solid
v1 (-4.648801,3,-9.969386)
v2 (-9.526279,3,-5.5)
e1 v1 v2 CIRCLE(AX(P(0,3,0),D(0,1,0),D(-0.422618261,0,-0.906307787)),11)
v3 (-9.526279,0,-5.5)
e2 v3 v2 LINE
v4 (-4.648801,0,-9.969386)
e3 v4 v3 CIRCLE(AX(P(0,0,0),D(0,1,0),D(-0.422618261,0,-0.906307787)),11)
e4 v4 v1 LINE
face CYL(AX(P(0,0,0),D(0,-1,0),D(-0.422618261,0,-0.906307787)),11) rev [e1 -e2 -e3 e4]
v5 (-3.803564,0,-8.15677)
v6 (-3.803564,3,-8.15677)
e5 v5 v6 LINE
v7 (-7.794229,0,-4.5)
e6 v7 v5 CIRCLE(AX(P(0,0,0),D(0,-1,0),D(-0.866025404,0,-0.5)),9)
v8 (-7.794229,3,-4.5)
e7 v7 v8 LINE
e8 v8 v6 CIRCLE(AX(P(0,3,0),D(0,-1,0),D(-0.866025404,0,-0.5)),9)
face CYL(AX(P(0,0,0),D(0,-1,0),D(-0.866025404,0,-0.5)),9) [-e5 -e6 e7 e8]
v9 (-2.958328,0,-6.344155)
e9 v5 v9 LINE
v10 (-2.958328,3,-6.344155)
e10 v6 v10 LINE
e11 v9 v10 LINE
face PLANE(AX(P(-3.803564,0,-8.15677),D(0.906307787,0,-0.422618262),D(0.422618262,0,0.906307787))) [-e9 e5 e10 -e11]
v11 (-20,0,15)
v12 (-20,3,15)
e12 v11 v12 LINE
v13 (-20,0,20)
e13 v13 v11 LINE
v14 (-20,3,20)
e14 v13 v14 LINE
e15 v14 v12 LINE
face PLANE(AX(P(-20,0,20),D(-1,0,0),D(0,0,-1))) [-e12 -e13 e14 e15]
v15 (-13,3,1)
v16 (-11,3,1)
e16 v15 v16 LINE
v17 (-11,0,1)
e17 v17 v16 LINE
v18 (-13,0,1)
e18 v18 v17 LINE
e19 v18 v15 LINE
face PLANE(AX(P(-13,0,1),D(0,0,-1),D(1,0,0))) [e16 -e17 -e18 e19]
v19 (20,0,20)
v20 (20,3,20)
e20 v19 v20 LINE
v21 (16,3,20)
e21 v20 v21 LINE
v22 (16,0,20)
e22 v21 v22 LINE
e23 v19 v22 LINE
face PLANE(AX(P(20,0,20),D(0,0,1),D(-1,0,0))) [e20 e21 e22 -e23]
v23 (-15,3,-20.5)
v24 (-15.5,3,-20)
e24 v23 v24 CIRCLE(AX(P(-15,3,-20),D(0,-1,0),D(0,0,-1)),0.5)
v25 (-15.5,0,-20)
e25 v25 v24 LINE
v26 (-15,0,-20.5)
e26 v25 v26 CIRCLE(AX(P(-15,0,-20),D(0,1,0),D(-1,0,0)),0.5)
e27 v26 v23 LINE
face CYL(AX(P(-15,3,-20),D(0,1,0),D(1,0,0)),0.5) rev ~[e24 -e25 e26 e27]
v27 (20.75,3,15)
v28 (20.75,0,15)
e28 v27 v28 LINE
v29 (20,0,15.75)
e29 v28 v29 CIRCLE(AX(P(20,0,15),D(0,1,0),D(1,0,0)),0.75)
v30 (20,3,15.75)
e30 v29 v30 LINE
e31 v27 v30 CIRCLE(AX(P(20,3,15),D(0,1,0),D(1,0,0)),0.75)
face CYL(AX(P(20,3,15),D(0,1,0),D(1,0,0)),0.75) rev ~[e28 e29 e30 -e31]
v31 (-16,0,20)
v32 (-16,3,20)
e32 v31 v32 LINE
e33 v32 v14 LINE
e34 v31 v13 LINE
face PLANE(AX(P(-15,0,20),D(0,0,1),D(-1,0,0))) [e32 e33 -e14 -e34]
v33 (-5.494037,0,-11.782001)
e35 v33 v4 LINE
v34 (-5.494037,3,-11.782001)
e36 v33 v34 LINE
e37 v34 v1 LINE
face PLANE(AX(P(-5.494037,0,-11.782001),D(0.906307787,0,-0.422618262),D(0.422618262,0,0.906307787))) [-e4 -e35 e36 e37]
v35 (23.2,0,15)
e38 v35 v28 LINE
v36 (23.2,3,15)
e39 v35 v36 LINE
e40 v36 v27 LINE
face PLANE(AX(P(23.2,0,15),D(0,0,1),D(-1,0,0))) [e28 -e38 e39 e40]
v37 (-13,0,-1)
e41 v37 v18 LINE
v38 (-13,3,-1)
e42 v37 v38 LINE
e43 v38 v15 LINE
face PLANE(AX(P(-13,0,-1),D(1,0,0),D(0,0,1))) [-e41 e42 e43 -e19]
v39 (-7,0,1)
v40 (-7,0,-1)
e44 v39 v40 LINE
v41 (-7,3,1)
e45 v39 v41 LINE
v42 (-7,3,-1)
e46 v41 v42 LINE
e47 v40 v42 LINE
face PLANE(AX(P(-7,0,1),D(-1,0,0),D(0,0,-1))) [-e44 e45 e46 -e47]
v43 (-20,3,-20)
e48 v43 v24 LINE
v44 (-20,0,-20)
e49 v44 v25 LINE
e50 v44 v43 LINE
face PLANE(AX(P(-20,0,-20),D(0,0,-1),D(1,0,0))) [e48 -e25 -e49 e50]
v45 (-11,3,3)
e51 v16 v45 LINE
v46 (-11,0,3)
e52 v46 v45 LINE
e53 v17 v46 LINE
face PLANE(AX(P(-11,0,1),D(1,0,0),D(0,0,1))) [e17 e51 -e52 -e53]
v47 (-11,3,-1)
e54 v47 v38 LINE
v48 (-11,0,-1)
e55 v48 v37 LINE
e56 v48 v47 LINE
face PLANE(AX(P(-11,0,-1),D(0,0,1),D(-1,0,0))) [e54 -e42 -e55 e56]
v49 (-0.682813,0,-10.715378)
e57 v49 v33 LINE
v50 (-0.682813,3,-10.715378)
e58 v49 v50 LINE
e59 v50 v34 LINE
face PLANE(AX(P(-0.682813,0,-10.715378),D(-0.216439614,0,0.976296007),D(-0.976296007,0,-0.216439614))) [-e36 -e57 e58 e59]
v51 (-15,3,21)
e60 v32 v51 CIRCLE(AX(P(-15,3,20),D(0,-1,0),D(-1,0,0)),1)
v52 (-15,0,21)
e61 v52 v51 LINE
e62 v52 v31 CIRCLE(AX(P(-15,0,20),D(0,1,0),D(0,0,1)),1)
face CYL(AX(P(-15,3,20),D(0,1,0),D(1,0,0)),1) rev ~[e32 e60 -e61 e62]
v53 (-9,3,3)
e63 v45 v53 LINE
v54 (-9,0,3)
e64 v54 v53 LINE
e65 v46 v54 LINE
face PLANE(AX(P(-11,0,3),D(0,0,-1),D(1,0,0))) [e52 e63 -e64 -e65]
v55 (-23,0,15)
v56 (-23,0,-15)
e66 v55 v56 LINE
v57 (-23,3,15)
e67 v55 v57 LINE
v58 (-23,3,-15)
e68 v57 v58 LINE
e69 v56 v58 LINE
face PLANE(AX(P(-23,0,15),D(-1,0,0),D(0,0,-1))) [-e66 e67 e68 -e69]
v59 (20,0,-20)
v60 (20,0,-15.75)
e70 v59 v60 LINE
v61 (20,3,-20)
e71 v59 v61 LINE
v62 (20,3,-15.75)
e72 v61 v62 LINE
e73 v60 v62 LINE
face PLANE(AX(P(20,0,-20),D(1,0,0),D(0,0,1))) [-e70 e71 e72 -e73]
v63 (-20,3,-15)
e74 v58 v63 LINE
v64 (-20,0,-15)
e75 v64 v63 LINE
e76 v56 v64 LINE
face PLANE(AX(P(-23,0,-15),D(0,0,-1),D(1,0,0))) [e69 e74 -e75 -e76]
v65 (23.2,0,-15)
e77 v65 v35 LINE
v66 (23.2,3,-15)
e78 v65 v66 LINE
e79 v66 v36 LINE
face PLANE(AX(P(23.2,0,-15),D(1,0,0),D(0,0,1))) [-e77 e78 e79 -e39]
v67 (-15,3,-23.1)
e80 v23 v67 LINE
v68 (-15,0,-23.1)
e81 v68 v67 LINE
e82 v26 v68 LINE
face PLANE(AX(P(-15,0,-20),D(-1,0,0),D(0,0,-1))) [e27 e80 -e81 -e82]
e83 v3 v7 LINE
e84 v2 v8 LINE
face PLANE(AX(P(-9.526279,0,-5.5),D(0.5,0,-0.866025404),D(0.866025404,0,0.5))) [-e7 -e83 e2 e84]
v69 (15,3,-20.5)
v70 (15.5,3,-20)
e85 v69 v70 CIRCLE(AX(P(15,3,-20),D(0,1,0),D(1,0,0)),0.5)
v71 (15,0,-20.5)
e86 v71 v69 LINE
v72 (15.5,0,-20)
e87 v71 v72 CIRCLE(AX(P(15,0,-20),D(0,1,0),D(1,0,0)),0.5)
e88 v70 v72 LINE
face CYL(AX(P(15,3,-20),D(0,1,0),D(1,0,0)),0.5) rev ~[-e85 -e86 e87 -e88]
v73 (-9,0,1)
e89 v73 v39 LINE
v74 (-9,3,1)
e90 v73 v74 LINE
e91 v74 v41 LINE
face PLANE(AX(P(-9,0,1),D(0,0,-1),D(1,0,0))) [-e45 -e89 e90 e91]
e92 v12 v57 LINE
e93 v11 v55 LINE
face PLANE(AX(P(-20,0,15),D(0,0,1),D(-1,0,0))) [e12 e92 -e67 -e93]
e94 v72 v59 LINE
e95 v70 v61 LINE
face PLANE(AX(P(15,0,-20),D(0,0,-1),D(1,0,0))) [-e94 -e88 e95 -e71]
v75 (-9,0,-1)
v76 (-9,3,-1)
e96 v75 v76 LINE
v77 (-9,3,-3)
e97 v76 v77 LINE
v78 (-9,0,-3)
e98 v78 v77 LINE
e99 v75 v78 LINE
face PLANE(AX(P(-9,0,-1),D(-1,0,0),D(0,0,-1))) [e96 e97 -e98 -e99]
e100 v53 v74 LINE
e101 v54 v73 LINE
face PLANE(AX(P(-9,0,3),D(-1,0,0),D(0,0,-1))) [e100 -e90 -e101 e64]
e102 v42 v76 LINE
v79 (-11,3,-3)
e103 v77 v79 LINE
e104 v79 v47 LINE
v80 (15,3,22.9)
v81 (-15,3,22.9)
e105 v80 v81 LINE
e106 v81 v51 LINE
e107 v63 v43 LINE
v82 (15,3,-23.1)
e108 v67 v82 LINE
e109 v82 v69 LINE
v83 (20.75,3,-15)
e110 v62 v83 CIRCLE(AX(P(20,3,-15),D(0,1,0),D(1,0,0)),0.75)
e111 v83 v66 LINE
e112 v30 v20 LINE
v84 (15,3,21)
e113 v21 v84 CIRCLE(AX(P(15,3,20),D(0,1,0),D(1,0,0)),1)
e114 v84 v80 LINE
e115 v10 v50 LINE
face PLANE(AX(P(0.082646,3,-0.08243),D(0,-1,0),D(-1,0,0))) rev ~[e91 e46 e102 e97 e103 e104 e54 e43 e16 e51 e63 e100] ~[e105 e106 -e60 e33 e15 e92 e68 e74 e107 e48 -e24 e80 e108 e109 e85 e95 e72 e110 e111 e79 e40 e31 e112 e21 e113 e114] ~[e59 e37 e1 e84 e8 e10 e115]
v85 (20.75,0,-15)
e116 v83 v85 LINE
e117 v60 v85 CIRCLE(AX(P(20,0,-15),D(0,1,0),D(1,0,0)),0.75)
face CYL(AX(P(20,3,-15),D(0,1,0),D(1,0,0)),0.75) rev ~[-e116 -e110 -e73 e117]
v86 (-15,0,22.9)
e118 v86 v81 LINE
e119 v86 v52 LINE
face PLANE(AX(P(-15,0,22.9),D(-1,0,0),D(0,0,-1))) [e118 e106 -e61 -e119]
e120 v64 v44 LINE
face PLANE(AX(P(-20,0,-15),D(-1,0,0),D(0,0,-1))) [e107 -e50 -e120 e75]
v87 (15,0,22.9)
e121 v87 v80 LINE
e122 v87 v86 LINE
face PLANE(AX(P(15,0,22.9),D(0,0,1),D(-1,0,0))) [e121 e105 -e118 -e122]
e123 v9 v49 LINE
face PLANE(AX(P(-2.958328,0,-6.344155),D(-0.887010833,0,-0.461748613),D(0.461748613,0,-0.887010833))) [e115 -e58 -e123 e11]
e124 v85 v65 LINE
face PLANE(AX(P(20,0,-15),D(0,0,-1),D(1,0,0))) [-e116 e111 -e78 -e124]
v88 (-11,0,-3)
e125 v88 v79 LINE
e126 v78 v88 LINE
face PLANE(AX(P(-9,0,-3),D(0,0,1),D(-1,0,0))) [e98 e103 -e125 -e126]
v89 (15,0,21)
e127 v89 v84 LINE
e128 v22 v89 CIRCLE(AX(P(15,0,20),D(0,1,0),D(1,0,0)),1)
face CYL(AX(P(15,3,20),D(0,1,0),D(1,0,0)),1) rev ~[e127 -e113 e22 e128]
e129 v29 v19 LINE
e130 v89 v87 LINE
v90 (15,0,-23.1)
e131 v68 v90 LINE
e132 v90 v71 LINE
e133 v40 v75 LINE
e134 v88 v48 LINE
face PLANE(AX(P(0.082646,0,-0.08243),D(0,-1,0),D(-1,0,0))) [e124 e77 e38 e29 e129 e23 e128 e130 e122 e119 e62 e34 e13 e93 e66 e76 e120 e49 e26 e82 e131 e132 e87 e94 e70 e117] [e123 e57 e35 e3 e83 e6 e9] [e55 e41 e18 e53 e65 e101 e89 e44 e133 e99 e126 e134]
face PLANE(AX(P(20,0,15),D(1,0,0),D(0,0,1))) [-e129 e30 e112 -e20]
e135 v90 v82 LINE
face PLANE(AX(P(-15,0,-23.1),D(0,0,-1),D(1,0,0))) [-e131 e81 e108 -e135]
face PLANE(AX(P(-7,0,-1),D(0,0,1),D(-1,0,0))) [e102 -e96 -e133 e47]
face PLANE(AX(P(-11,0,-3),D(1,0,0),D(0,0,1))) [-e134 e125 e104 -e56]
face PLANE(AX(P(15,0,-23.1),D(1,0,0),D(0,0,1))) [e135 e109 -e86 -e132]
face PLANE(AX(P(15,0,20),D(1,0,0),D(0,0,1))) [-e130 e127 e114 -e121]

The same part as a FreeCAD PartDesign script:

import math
import FreeCAD as App
import Part
import Sketcher
from FreeCAD import Vector
Q = App.Units.Quantity


def add_polygon(sketch, points):
    """Adds a closed chain of lines whose ends are joined by coincident constraints."""
    first, n = sketch.GeometryCount, len(points)
    for a, b in zip(points, points[1:] + points[:1]):
        sketch.addGeometry(Part.LineSegment(App.Vector(*a, 0), App.Vector(*b, 0)), False)
    for i in range(n):
        sketch.addConstraint(Sketcher.Constraint("Coincident", first + i, 2, first + (i + 1) % n, 1))

doc = App.newDocument("Part")
body = doc.addObject("PartDesign::Body", "Body")

# Sketch on XZ plane
sketch1 = body.newObject("Sketcher::SketchObject", "Sketch")
sketch1.AttachmentSupport = (doc.getObject("XZ_Plane"), [""])
sketch1.MapMode = "FlatFace"
add_polygon(sketch1, [(-20, 15), (-20, 20), (-15, 20), (-15, 22.9), (15, 22.9), (15, 20), (20, 20), (20, 15), (23.2, 15), (23.2, -15), (20, -15), (20, -20), (15, -20), (15, -23.1), (-15, -23.1), (-15, -20), (-20, -20), (-20, -15), (-23, -15), (-23, 15)])  # lines 0-19
add_polygon(sketch1, [(-13, 1), (-13, -1), (-11, -1), (-11, -3), (-9, -3), (-9, -1), (-7, -1), (-7, 1), (-9, 1), (-9, 3), (-11, 3), (-11, 1)])  # lines 20-31
sketch1.addGeometry(Part.ArcOfCircle(Part.Circle(Vector(0, 0, 0), Vector(0, 0, 1), 11), math.radians(-150), math.radians(-115)), False)  # 32
sketch1.addGeometry(Part.LineSegment(Vector(-4.6, -10, 0), Vector(-5.5, -11.8, 0)), False)  # 33
sketch1.addGeometry(Part.LineSegment(Vector(-5.5, -11.8, 0), Vector(-0.7, -10.7, 0)), False)  # 34
sketch1.addGeometry(Part.LineSegment(Vector(-0.7, -10.7, 0), Vector(-3, -6.3, 0)), False)  # 35
sketch1.addGeometry(Part.LineSegment(Vector(-3, -6.3, 0), Vector(-3.8, -8.2, 0)), False)  # 36
sketch1.addGeometry(Part.ArcOfCircle(Part.Circle(Vector(0, 0, 0), Vector(0, 0, 1), 9), math.radians(-150), math.radians(-115)), False)  # 37
sketch1.addGeometry(Part.LineSegment(Vector(-7.8, -4.5, 0), Vector(-9.5, -5.5, 0)), False)  # 38
sketch1.addConstraint(Sketcher.Constraint("Coincident", 32, 2, 33, 1))
sketch1.addConstraint(Sketcher.Constraint("Coincident", 33, 2, 34, 1))
sketch1.addConstraint(Sketcher.Constraint("Coincident", 34, 2, 35, 1))
sketch1.addConstraint(Sketcher.Constraint("Coincident", 35, 2, 36, 1))
sketch1.addConstraint(Sketcher.Constraint("Coincident", 36, 2, 37, 2))
sketch1.addConstraint(Sketcher.Constraint("Coincident", 37, 1, 38, 1))
sketch1.addConstraint(Sketcher.Constraint("Coincident", 38, 2, 32, 1))
sketch1.addConstraint(Sketcher.Constraint("Vertical", 0))
sketch1.addConstraint(Sketcher.Constraint("Horizontal", 1))
sketch1.addConstraint(Sketcher.Constraint("Vertical", 2))
sketch1.addConstraint(Sketcher.Constraint("Horizontal", 3))
sketch1.addConstraint(Sketcher.Constraint("Vertical", 4))
sketch1.addConstraint(Sketcher.Constraint("Horizontal", 5))
sketch1.addConstraint(Sketcher.Constraint("Vertical", 6))
sketch1.addConstraint(Sketcher.Constraint("Horizontal", 7))
sketch1.addConstraint(Sketcher.Constraint("Vertical", 8))
sketch1.addConstraint(Sketcher.Constraint("Horizontal", 9))
sketch1.addConstraint(Sketcher.Constraint("Vertical", 10))
sketch1.addConstraint(Sketcher.Constraint("Horizontal", 11))
sketch1.addConstraint(Sketcher.Constraint("Vertical", 12))
sketch1.addConstraint(Sketcher.Constraint("Horizontal", 13))
sketch1.addConstraint(Sketcher.Constraint("Vertical", 14))
sketch1.addConstraint(Sketcher.Constraint("Horizontal", 15))
sketch1.addConstraint(Sketcher.Constraint("Vertical", 16))
sketch1.addConstraint(Sketcher.Constraint("Horizontal", 17))
sketch1.addConstraint(Sketcher.Constraint("Vertical", 18))
sketch1.addConstraint(Sketcher.Constraint("Horizontal", 19))
sketch1.addConstraint(Sketcher.Constraint("Vertical", 20))
sketch1.addConstraint(Sketcher.Constraint("Horizontal", 21))
sketch1.addConstraint(Sketcher.Constraint("Vertical", 22))
sketch1.addConstraint(Sketcher.Constraint("Horizontal", 23))
sketch1.addConstraint(Sketcher.Constraint("Vertical", 24))
sketch1.addConstraint(Sketcher.Constraint("Horizontal", 25))
sketch1.addConstraint(Sketcher.Constraint("Vertical", 26))
sketch1.addConstraint(Sketcher.Constraint("Horizontal", 27))
sketch1.addConstraint(Sketcher.Constraint("Vertical", 28))
sketch1.addConstraint(Sketcher.Constraint("Horizontal", 29))
sketch1.addConstraint(Sketcher.Constraint("Vertical", 30))
sketch1.addConstraint(Sketcher.Constraint("Horizontal", 31))
sketch1.addConstraint(Sketcher.Constraint("Coincident", 32, 3, -1, 1))
sketch1.addConstraint(Sketcher.Constraint("Coincident", 37, 3, -1, 1))
sketch1.addConstraint(Sketcher.Constraint("Symmetric", 0, 2, 10, 2, -1, 1))
sketch1.addConstraint(Sketcher.Constraint("Symmetric", 4, 2, 14, 2, -1, 1))
sketch1.addConstraint(Sketcher.Constraint("Symmetric", 6, 2, 16, 2, -1, 1))
sketch1.addConstraint(Sketcher.Constraint("Symmetric", 1, 2, 4, 2, -2))
sketch1.addConstraint(Sketcher.Constraint("Symmetric", 9, 2, 16, 2, -2))
sketch1.addConstraint(Sketcher.Constraint("Symmetric", 24, 2, 27, 2, -1))
sketch1.addConstraint(Sketcher.Constraint("Symmetric", 22, 2, 29, 2, -1))
sketch1.addConstraint(Sketcher.Constraint("Parallel", 33, 36))
sketch1.addConstraint(Sketcher.Constraint("Horizontal", 7, 2, 18, 2))
sketch1.addConstraint(Sketcher.Constraint("Horizontal", 21, 2, 24, 2))
sketch1.addConstraint(Sketcher.Constraint("Horizontal", 27, 2, 30, 2))
sketch1.addConstraint(Sketcher.Constraint("Vertical", 4, 2, 11, 2))
sketch1.addConstraint(Sketcher.Constraint("Equal", 21, 23))
sketch1.addConstraint(Sketcher.Constraint("Equal", 23, 25))
sketch1.addConstraint(Sketcher.Constraint("Equal", 15, 0))
sketch1.addConstraint(Sketcher.Constraint("Equal", 13, 8))
sketch1.addConstraint(Sketcher.Constraint("Equal", 31, 20))
sketch1.addConstraint(Sketcher.Constraint("Equal", 20, 22))
sketch1.addConstraint(Sketcher.Constraint("Equal", 34, 35))
sketch1.addConstraint(Sketcher.Constraint("Equal", 33, 36))
sketch1.addConstraint(Sketcher.Constraint("Equal", 36, 38))
sketch1.addConstraint(Sketcher.Constraint("Radius", 32, Q("11 mm")))
sketch1.addConstraint(Sketcher.Constraint("Radius", 37, Q("9 mm")))
sketch1.addConstraint(Sketcher.Constraint("DistanceX", 1, 1, 1, 2, Q("5 mm")))
sketch1.addConstraint(Sketcher.Constraint("DistanceX", 3, 1, 3, 2, Q("30 mm")))
sketch1.addConstraint(Sketcher.Constraint("DistanceX", 17, 2, 17, 1, Q("3 mm")))
sketch1.addConstraint(Sketcher.Constraint("DistanceX", 21, 1, 21, 2, Q("2 mm")))
sketch1.addConstraint(Sketcher.Constraint("Angle", 33, Q("-115 deg")))
sketch1.addConstraint(Sketcher.Constraint("Angle", 38, Q("-150 deg")))
sketch1.addConstraint(Sketcher.Constraint("DistanceX", 7, 1, 7, 2, Q("3.2 mm")))
sketch1.addConstraint(Sketcher.Constraint("DistanceY", 2, 1, 2, 2, Q("2.9 mm")))
sketch1.addConstraint(Sketcher.Constraint("DistanceY", 12, 2, 12, 1, Q("3.1 mm")))
sketch1.addConstraint(Sketcher.Constraint("DistanceX", 20, 2, -1, 1, Q("13 mm")))
sketch1.addConstraint(Sketcher.Constraint("Angle", 34, Q("12.5 deg")))
sketch1.addConstraint(Sketcher.Constraint("Angle", 35, Q("117.5 deg")))
sketch1.addConstraint(Sketcher.Constraint("DistanceY", 37, 1, -1, 1, Q("4.5 mm")))
sketch1.addConstraint(Sketcher.Constraint("DistanceY", 33, 2, -1, 1, Q("11.782001 mm")))
pad1 = body.newObject("PartDesign::Pad", "Pad")
pad1.Profile = sketch1
pad1.Length = 3
pad1.Reversed = True

# Sketch on XZ plane
sketch2 = body.newObject("Sketcher::SketchObject", "Sketch001")
sketch2.AttachmentSupport = (doc.getObject("XZ_Plane"), [""])
sketch2.MapMode = "FlatFace"
sketch2.AttachmentOffset = App.Placement(Vector(0, 0, -3), App.Rotation())
sketch2.addGeometry(Part.Circle(Vector(-15, -20, 0), Vector(0, 0, 1), 0.5), False)
sketch2.addGeometry(Part.Circle(Vector(15, -20, 0), Vector(0, 0, 1), 0.5), False)
sketch2.addGeometry(Part.Circle(Vector(20, -15, 0), Vector(0, 0, 1), 0.8), False)
sketch2.addGeometry(Part.Circle(Vector(20, 15, 0), Vector(0, 0, 1), 0.8), False)
sketch2.addGeometry(Part.Circle(Vector(15, 20, 0), Vector(0, 0, 1), 1), False)
sketch2.addGeometry(Part.Circle(Vector(-15, 20, 0), Vector(0, 0, 1), 1), False)
sketch2.addConstraint(Sketcher.Constraint("Equal", 0, 1))
sketch2.addConstraint(Sketcher.Constraint("Equal", 2, 3))
sketch2.addConstraint(Sketcher.Constraint("Equal", 4, 5))
sketch2.addConstraint(Sketcher.Constraint("Symmetric", 0, 3, 4, 3, -1, 1))
sketch2.addConstraint(Sketcher.Constraint("Symmetric", 1, 3, 5, 3, -1, 1))
sketch2.addConstraint(Sketcher.Constraint("Symmetric", 0, 3, 1, 3, -2))
sketch2.addConstraint(Sketcher.Constraint("Symmetric", 2, 3, 3, 3, -1))
sketch2.addConstraint(Sketcher.Constraint("Diameter", 0, Q("1 mm")))
sketch2.addConstraint(Sketcher.Constraint("Diameter", 4, Q("2 mm")))
sketch2.addConstraint(Sketcher.Constraint("Diameter", 2, Q("1.5 mm")))
sketch2.addConstraint(Sketcher.Constraint("DistanceX", 0, 3, -1, 1, Q("15 mm")))
sketch2.addConstraint(Sketcher.Constraint("DistanceY", 0, 3, -1, 1, Q("20 mm")))
sketch2.addConstraint(Sketcher.Constraint("DistanceX", -1, 1, 2, 3, Q("20 mm")))
sketch2.addConstraint(Sketcher.Constraint("DistanceY", 2, 3, -1, 1, Q("15 mm")))
pocket1 = body.newObject("PartDesign::Pocket", "Pocket")
pocket1.Profile = sketch2
pocket1.Type = "ThroughAll"
pocket1.Reversed = True

doc.recompute()
